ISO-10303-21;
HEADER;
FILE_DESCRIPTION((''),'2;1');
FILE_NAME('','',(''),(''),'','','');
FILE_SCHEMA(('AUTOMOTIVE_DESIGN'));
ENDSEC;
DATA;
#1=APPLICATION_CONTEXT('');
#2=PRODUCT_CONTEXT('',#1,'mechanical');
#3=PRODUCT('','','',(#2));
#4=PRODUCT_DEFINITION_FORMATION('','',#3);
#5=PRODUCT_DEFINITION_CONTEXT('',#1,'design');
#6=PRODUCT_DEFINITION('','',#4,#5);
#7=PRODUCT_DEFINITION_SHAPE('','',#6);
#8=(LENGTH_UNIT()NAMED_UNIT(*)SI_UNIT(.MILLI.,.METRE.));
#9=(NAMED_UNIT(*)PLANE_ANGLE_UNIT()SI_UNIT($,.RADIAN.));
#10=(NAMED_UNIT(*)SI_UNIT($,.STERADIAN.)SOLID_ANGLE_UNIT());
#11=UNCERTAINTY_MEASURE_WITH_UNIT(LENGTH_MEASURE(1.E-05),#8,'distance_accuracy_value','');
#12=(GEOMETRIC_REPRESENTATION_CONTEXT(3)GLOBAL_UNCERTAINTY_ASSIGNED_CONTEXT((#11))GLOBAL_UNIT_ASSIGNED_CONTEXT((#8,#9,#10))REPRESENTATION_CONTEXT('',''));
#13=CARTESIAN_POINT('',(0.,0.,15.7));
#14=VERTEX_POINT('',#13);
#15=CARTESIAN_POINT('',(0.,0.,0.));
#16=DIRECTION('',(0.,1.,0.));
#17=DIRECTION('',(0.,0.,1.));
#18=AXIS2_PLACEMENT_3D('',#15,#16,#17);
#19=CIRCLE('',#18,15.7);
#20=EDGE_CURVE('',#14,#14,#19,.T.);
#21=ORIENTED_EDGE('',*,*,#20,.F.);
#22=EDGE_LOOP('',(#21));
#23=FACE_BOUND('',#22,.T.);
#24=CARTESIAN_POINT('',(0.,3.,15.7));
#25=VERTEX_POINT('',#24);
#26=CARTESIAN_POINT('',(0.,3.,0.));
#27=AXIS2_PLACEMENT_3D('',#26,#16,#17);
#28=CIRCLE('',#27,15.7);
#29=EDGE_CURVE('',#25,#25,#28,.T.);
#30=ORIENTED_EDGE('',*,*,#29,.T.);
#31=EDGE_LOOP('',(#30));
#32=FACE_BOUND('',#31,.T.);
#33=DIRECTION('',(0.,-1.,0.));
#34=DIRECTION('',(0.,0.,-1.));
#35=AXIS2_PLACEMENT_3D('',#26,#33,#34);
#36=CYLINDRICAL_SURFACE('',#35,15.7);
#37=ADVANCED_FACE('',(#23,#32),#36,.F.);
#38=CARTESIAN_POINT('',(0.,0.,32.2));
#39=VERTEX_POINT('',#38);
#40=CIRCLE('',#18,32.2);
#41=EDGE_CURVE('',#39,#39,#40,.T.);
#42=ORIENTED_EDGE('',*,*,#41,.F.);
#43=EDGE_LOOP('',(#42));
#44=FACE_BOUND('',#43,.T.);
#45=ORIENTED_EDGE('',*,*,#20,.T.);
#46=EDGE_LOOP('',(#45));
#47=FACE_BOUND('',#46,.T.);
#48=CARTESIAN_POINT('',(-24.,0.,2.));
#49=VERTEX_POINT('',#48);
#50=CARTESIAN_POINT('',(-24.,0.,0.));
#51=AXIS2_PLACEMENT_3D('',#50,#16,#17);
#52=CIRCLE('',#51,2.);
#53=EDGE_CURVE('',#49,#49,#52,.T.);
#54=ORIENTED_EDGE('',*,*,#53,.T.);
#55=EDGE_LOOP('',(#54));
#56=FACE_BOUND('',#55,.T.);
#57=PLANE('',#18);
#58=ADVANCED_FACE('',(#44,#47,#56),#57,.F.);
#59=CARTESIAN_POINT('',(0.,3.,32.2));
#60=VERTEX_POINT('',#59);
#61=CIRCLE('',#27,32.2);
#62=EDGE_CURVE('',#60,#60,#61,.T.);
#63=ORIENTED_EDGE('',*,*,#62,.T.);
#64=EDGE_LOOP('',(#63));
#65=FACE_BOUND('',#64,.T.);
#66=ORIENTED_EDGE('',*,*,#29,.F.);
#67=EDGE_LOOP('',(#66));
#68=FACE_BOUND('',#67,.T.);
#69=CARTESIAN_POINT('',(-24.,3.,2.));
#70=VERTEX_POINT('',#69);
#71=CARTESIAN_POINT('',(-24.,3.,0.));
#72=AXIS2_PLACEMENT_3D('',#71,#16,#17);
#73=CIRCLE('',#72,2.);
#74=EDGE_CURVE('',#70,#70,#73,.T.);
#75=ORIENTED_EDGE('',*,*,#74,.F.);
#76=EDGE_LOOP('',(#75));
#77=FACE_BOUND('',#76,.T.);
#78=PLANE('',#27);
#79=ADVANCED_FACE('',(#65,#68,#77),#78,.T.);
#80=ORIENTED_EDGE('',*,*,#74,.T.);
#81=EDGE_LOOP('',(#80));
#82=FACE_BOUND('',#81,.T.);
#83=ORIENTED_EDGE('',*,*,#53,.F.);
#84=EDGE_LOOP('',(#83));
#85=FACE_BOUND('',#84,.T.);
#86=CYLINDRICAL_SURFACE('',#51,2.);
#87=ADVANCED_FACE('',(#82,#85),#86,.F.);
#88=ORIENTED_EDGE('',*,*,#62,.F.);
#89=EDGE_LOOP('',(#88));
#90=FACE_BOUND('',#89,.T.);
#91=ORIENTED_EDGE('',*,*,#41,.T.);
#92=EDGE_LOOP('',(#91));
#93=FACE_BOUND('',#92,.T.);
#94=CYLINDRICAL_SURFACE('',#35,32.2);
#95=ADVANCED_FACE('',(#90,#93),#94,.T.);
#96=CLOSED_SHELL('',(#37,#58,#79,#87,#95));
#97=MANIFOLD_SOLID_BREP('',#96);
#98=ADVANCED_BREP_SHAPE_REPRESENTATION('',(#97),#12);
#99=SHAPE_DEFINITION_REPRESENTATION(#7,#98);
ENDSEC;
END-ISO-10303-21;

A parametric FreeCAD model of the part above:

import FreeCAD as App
import Part
import Sketcher
from FreeCAD import Vector
Q = App.Units.Quantity

doc = App.newDocument("Part")
body = doc.addObject("PartDesign::Body", "Body")

sketch1 = doc.addObject("Sketcher::SketchObject", "Sketch")
body.addObject(sketch1)
sketch1.AttachmentSupport = (doc.XZ_Plane, [""])
sketch1.MapMode = "FlatFace"
sketch1.addGeometry([
    Part.Circle(Vector(0, 0, 0), Vector(0, 0, 1), 32),
    Part.Circle(Vector(0, 0, 0), Vector(0, 0, 1), 16),
], False)
sketch1.addConstraint([
    Sketcher.Constraint("Coincident", 0, 3, -1, 1),
    Sketcher.Constraint("Coincident", 1, 3, -1, 1),
    Sketcher.Constraint("Diameter", 0, Q("64.4 mm")),
    Sketcher.Constraint("Diameter", 1, Q("31.4 mm")),
])
pad1 = doc.addObject("PartDesign::Pad", "Pad")
body.addObject(pad1)
pad1.Profile = sketch1
pad1.Length = 3
pad1.Reversed = True

sketch2 = doc.addObject("Sketcher::SketchObject", "Sketch001")
body.addObject(sketch2)
sketch2.AttachmentSupport = (doc.XZ_Plane, [""])
sketch2.MapMode = "FlatFace"
sketch2.AttachmentOffset = App.Placement(Vector(0, 0, -3), App.Rotation())
sketch2.addGeometry(Part.Circle(Vector(-24, 0, 0), Vector(0, 0, 1), 2), False)
sketch2.addConstraint([
    Sketcher.Constraint("PointOnObject", 0, 3, -1),
    Sketcher.Constraint("Diameter", 0, Q("4 mm")),
    Sketcher.Constraint("DistanceX", 0, 3, -1, 1, Q("24 mm")),
])
pocket1 = doc.addObject("PartDesign::Pocket", "Pocket")
body.addObject(pocket1)
pocket1.Profile = sketch2
pocket1.Type = "ThroughAll"
pocket1.Reversed = True

doc.recompute()
